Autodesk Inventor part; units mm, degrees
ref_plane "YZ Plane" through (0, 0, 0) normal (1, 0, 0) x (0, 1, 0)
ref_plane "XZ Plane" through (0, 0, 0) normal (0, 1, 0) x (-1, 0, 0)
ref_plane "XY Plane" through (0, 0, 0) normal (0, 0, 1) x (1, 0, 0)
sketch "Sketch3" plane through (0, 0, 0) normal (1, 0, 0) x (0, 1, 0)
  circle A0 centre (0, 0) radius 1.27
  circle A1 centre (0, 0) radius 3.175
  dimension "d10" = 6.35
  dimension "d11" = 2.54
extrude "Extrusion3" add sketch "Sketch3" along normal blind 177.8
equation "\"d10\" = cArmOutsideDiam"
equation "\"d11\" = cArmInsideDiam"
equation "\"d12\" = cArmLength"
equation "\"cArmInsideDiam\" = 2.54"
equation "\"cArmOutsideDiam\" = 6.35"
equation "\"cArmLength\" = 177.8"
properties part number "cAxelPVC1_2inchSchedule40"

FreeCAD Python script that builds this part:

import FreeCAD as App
import Part
import Sketcher

V = App.Vector
Q = App.Units.Quantity

doc = App.newDocument("Part")
body = doc.addObject("PartDesign::Body", "Body")

# Sketch on YZ plane
sketch1 = body.newObject("Sketcher::SketchObject", "Sketch")
sketch1.AttachmentSupport = (doc.getObject("YZ_Plane"), [""])
sketch1.MapMode = "FlatFace"
sketch1.addGeometry([
    Part.Circle(V(0, 0, 0), V(0, 0, 1), 3.2),
    Part.Circle(V(0, 0, 0), V(0, 0, 1), 1.3),
], False)
sketch1.addConstraint([
    Sketcher.Constraint("Coincident", 0, 3, -1, 1),
    Sketcher.Constraint("Coincident", 1, 3, -1, 1),
    Sketcher.Constraint("Diameter", 1, Q("0.1 in")),
    Sketcher.Constraint("Diameter", 0, Q("0.25 in")),
])
pad1 = body.newObject("PartDesign::Pad", "Pad")
pad1.Profile = sketch1
pad1.Length = Q("7 in")

doc.recompute()
